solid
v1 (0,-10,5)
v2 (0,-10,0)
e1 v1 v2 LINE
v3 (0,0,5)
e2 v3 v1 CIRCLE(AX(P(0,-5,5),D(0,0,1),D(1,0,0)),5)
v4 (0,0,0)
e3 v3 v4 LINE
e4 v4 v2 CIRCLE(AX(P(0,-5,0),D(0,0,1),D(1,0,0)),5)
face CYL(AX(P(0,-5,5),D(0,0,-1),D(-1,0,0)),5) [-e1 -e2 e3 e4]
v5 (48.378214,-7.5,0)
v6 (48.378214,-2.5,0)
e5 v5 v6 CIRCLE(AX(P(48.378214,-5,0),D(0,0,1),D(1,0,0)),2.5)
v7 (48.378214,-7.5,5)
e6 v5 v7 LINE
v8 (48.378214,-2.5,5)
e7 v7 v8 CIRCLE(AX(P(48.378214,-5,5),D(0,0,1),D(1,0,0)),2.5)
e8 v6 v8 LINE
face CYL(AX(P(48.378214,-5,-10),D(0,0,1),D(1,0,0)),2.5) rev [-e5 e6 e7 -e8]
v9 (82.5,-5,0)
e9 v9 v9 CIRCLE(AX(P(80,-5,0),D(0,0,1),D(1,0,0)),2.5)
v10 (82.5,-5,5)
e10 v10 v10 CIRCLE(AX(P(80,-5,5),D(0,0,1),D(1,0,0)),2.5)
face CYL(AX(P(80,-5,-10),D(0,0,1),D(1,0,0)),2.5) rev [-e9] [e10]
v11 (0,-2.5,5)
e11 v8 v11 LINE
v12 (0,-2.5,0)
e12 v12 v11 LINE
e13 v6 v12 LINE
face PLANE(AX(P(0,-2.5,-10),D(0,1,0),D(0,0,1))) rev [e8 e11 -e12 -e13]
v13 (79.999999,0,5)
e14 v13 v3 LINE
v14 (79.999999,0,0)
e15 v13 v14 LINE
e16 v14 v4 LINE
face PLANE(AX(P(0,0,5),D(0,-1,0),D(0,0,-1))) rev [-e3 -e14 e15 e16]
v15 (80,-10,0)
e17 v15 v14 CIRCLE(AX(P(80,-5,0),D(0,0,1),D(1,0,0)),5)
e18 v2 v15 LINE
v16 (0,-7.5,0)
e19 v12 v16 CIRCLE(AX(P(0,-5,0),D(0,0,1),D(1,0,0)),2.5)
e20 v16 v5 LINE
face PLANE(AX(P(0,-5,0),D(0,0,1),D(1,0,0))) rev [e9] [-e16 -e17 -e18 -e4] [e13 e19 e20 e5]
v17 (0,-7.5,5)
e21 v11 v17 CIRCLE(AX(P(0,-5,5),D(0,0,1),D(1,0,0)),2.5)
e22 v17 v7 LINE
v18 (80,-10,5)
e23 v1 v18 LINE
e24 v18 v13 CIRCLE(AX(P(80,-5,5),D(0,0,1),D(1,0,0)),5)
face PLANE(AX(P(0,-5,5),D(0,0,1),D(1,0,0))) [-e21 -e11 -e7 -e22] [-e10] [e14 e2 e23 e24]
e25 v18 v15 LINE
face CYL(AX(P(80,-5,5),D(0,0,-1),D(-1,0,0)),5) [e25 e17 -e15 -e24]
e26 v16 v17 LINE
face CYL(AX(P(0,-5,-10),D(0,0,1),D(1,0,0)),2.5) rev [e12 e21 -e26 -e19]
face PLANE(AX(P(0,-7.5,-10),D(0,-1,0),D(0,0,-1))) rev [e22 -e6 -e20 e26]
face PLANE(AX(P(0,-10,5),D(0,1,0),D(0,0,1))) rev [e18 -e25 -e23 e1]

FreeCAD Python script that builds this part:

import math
import FreeCAD as App
import Part
import Sketcher

doc = App.newDocument("Part")
params = doc.addObject("Spreadsheet::Sheet", "Params")
for row, (alias, value) in enumerate([
    ("sketch1_radius", "5 mm"),
    ("sketch1_width", "79.999999 mm"),
    ("pad1_length", "5 mm"),
    ("sketch2_diameter", "5 mm"),
    ("pocket1_length", "15 mm"),
], start=1):
    params.set(f"A{row}", alias)
    params.set(f"B{row}", "=" + value)
    params.setAlias(f"B{row}", alias)

body = doc.addObject("PartDesign::Body", "Body")

# Sketch on XY plane
sketch1 = doc.addObject("Sketcher::SketchObject", "Sketch")
body.addObject(sketch1)
sketch1.AttachmentSupport = (doc.XY_Plane, [""])
sketch1.MapMode = "FlatFace"
sketch1.addGeometry([
    Part.LineSegment(App.Vector(79.999999, 0, 0), App.Vector(0, 0, 0)),
    Part.ArcOfCircle(Part.Circle(App.Vector(0, -5, 0), App.Vector(0, 0, 1), 5), math.radians(90), math.radians(270)),
    Part.LineSegment(App.Vector(0, -10, 0), App.Vector(80, -10, 0)),
    Part.ArcOfCircle(Part.Circle(App.Vector(80, -5, 0), App.Vector(0, 0, 1), 5), math.radians(-90), math.radians(90.00001)),
], False)
sketch1.addConstraint([
    Sketcher.Constraint("Tangent", 0, 2, 1, 1),
    Sketcher.Constraint("Tangent", 1, 2, 2, 1),
    Sketcher.Constraint("Tangent", 2, 2, 3, 1),
    Sketcher.Constraint("Tangent", 3, 2, 0, 1),
    Sketcher.Constraint("Horizontal", 0),
    Sketcher.Constraint("Horizontal", 2),
    Sketcher.Constraint("Coincident", 0, 2, -1, 1),
    Sketcher.Constraint("Radius", 1, 5.0),
    Sketcher.Constraint("DistanceX", 0, 2, 0, 1, 79.999999),
])
sketch1.setExpression("Constraints[7]", "Params.sketch1_radius")
sketch1.setExpression("Constraints[8]", "Params.sketch1_width")
pad1 = doc.addObject("PartDesign::Pad", "Pad")
body.addObject(pad1)
pad1.Profile = sketch1
pad1.setExpression("Length", "Params.pad1_length")

# Sketch on XY plane
sketch2 = doc.addObject("Sketcher::SketchObject", "Sketch001")
body.addObject(sketch2)
sketch2.AttachmentSupport = (doc.XY_Plane, [""])
sketch2.MapMode = "FlatFace"
sketch2.AttachmentOffset = App.Placement(App.Vector(0, 0, 5), App.Rotation())
sketch2.addGeometry([
    Part.Circle(App.Vector(80, -5, 0), App.Vector(0, 0, 1), 2.5),  # 0
    Part.LineSegment(App.Vector(48.378214, -2.5, 0), App.Vector(0, -2.5, 0)),  # 1
    Part.ArcOfCircle(Part.Circle(App.Vector(0, -5, 0), App.Vector(0, 0, 1), 2.5), math.radians(90), math.radians(270)),  # 2
    Part.LineSegment(App.Vector(0, -7.5, 0), App.Vector(48.378214, -7.5, 0)),  # 3
    Part.ArcOfCircle(Part.Circle(App.Vector(48.378214, -5, 0), App.Vector(0, 0, 1), 2.5), math.radians(-90), math.radians(90)),  # 4
], False)
sketch2.addConstraint([
    Sketcher.Constraint("Tangent", 1, 2, 2, 1),
    Sketcher.Constraint("Tangent", 2, 2, 3, 1),
    Sketcher.Constraint("Tangent", 3, 2, 4, 1),
    Sketcher.Constraint("Tangent", 4, 2, 1, 1),
    Sketcher.Constraint("Horizontal", 1),
    Sketcher.Constraint("Horizontal", 3),
    Sketcher.Constraint("Equal", 0, 2),
    Sketcher.Constraint("PointOnObject", 2, 3, -2),
    Sketcher.Constraint("Horizontal", 0, 3, 2, 3),
    Sketcher.Constraint("Diameter", 0, 5.0),
    Sketcher.Constraint("DistanceX", -1, 1, 0, 3, 80.0),
    Sketcher.Constraint("DistanceY", 0, 3, -1, 1, 5.0),
    Sketcher.Constraint("DistanceX", 1, 2, 1, 1, 48.378214),
])
sketch2.setExpression("Constraints[9]", "Params.sketch2_diameter")
pocket1 = doc.addObject("PartDesign::Pocket", "Pocket")
body.addObject(pocket1)
pocket1.Profile = sketch2
pocket1.setExpression("Length", "Params.pocket1_length")

doc.recompute()
